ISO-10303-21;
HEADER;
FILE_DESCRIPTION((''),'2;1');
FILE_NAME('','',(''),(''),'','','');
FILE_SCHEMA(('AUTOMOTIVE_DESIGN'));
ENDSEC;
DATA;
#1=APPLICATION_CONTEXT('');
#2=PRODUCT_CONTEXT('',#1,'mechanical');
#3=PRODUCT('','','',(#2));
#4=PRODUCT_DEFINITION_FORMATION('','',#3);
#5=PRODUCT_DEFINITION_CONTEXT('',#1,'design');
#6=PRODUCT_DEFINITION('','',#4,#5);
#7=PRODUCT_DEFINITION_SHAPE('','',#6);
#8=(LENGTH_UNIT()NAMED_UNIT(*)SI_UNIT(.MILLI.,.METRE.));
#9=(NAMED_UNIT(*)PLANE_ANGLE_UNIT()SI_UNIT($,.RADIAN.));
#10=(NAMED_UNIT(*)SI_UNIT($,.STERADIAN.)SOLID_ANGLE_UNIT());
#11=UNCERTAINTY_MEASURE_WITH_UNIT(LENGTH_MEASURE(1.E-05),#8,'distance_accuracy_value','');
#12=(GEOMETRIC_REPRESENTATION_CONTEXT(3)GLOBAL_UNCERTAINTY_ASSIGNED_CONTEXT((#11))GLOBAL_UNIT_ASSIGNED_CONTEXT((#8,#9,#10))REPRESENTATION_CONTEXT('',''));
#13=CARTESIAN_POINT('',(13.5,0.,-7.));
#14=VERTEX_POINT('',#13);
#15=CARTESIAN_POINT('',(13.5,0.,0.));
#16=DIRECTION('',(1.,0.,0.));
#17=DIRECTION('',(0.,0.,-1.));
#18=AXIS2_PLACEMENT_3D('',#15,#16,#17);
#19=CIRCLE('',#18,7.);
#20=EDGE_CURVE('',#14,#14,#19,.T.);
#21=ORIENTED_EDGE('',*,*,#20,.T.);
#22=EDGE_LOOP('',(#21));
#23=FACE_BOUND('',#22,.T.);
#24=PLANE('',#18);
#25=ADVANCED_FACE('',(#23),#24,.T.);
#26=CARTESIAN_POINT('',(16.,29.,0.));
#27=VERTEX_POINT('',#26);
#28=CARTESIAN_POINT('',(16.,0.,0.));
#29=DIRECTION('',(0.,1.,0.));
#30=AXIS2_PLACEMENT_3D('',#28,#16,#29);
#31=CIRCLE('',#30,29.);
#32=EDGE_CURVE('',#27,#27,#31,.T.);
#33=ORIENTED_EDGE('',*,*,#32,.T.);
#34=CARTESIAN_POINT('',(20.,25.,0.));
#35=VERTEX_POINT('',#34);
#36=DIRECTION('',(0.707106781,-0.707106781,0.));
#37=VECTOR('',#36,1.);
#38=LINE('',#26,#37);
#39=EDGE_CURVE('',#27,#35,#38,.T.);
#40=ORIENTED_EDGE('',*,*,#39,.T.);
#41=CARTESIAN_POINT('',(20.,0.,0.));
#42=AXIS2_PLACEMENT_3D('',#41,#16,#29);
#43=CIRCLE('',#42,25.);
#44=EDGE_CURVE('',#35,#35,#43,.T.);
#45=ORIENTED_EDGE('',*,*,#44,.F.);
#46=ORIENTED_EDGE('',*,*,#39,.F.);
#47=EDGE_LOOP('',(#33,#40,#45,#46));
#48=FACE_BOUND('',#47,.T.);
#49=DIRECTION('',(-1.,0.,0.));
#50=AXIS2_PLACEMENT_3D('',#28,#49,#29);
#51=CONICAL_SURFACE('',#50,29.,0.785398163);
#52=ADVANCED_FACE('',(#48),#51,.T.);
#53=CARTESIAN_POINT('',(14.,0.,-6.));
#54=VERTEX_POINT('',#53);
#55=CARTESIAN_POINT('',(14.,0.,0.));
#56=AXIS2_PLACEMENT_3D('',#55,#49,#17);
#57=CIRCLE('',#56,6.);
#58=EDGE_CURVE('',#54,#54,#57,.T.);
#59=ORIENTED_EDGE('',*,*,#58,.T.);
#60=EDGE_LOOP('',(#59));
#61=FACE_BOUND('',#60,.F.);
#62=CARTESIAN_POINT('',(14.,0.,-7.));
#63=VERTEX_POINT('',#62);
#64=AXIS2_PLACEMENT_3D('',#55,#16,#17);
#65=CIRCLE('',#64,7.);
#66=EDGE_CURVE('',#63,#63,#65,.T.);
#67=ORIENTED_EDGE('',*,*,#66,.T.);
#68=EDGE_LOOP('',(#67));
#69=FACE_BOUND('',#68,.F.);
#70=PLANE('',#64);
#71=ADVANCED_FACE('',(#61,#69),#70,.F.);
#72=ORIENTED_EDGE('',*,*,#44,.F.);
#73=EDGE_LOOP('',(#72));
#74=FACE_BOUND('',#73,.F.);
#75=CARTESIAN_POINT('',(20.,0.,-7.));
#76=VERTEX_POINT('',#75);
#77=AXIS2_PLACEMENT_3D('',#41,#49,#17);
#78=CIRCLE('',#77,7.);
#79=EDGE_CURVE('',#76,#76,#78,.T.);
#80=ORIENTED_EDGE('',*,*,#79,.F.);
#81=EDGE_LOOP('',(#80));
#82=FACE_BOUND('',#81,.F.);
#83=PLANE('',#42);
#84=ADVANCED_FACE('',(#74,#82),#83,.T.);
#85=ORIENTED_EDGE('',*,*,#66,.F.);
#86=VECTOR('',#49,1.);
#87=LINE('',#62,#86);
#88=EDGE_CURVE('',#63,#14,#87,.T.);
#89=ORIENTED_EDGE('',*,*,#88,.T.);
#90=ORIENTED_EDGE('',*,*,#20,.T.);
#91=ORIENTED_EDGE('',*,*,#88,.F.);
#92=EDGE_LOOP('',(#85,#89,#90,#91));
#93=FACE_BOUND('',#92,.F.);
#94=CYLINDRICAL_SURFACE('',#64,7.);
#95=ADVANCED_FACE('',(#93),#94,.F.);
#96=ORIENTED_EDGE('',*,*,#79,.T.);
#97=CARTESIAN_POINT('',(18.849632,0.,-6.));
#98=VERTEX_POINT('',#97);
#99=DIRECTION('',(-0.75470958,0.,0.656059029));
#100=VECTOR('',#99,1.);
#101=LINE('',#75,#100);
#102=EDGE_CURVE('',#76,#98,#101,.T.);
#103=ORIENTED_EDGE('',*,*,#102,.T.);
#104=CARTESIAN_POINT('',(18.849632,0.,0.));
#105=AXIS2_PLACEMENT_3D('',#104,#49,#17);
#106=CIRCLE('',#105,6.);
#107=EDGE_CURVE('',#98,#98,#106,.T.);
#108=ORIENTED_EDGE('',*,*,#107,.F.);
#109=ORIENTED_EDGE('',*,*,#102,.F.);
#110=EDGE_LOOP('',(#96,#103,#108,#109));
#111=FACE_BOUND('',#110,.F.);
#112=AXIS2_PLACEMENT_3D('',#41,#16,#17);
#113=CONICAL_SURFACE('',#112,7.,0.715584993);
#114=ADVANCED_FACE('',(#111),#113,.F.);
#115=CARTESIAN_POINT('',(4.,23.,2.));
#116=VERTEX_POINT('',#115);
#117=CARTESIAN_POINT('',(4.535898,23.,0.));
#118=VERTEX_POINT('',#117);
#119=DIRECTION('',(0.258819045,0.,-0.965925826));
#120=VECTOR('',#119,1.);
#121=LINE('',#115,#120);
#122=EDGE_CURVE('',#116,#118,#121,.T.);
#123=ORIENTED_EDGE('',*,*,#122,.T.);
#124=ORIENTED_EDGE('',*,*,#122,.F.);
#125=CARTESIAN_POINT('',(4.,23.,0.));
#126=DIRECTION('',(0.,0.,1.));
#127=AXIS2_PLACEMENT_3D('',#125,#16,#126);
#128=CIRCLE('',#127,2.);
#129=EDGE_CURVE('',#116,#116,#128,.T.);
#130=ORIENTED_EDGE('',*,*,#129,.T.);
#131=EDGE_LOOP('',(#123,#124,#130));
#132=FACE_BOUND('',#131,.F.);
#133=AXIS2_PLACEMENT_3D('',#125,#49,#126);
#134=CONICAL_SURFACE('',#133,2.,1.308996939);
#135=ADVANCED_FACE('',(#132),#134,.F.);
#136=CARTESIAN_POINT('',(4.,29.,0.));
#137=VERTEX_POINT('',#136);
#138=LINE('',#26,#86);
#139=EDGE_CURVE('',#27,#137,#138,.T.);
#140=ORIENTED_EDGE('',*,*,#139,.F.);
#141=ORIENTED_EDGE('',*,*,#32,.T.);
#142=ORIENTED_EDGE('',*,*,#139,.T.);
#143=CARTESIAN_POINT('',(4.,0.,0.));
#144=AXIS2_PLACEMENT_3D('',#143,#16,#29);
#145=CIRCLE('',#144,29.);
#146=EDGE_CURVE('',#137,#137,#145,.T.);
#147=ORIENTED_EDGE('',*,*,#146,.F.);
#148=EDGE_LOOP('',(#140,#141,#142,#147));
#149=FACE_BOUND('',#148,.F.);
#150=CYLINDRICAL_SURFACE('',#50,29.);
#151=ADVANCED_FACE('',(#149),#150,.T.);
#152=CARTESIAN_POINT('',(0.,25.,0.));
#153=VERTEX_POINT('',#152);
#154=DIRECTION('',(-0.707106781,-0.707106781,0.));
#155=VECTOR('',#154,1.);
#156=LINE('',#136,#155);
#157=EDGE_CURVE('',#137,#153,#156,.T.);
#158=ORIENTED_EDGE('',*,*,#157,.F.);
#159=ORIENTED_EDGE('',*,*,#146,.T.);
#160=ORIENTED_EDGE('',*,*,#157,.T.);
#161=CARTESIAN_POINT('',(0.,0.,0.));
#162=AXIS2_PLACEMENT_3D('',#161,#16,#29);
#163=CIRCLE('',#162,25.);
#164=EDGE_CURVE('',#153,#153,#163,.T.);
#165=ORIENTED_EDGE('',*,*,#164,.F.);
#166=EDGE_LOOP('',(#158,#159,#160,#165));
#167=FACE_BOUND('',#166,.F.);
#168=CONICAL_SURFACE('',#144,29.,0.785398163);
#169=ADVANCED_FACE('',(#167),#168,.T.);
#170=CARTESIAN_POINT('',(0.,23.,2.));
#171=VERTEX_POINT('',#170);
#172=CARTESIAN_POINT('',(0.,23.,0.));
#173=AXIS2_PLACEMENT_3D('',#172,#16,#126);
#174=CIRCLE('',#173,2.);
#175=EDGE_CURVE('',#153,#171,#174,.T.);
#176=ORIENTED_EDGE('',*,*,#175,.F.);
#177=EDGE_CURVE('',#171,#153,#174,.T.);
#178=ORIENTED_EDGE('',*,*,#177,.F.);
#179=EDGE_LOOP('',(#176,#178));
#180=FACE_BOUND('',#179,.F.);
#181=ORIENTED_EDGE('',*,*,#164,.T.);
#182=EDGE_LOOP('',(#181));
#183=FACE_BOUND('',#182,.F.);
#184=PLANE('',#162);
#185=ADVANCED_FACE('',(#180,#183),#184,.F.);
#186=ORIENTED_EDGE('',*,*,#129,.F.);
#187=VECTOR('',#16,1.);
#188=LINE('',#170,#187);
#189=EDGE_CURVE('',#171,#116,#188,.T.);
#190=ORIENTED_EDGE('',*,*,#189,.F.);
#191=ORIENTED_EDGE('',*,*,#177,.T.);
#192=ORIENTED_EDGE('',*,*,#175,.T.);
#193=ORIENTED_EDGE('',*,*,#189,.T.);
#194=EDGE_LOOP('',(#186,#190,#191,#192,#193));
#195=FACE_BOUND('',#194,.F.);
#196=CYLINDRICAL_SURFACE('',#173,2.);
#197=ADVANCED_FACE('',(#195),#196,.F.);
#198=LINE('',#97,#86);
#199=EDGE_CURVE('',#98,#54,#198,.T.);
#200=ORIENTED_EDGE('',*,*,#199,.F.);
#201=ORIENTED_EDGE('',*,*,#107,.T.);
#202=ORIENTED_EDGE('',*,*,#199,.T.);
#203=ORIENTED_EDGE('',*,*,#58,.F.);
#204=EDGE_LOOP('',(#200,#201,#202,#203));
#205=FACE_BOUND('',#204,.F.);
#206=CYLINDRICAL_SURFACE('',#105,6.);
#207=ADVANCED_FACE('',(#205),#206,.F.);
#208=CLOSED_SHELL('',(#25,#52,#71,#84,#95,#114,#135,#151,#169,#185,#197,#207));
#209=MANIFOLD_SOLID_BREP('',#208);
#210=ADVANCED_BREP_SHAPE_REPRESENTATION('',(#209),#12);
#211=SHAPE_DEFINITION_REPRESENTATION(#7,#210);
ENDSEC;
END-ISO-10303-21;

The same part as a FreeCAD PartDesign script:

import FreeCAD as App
import Part
import Sketcher


def add_polygon(sketch, points):
    """Adds a closed chain of lines whose ends are joined by coincident constraints."""
    first, n = sketch.GeometryCount, len(points)
    for a, b in zip(points, points[1:] + points[:1]):
        sketch.addGeometry(Part.LineSegment(App.Vector(*a, 0), App.Vector(*b, 0)), False)
    for i in range(n):
        sketch.addConstraint(Sketcher.Constraint("Coincident", first + i, 2, first + (i + 1) % n, 1))

doc = App.newDocument("Part")
body = doc.addObject("PartDesign::Body", "Body")

# Sketch on XY plane
sketch1 = body.newObject("Sketcher::SketchObject", "Sketch")
sketch1.AttachmentSupport = (doc.getObject("XY_Plane"), [""])
sketch1.MapMode = "FlatFace"
add_polygon(sketch1, [(0, 25), (0, 0), (20, 0), (20, 25), (16, 29), (4, 29)])  # lines 0-5
sketch1.addConstraint([
    Sketcher.Constraint("Vertical", 0),
    Sketcher.Constraint("Horizontal", 1),
    Sketcher.Constraint("Vertical", 2),
    Sketcher.Constraint("Horizontal", 4),
    Sketcher.Constraint("Coincident", 0, 2, -1, 1),
    Sketcher.Constraint("Perpendicular", 3, 5),
    Sketcher.Constraint("Horizontal", 2, 2, 5, 2),
    Sketcher.Constraint("Equal", 3, 5),
    Sketcher.Constraint("DistanceX", 1, 1, 1, 2, 20.0),
    Sketcher.Constraint("DistanceY", -1, 1, 3, 2, 29.0),
    Sketcher.Constraint("DistanceX", -1, 1, 4, 2, 4.0),
])
revolution = body.newObject("PartDesign::Revolution", "Revolution")
revolution.Profile = sketch1
revolution.ReferenceAxis = (sketch1, ["H_Axis"])
revolution.Angle = 360

# Sketch on YZ plane
sketch2 = body.newObject("Sketcher::SketchObject", "Sketch001")
sketch2.AttachmentSupport = (doc.getObject("YZ_Plane"), [""])
sketch2.MapMode = "FlatFace"
sketch2.addGeometry(Part.Circle(App.Vector(23, 0, 0), App.Vector(0, 0, 1), 2), False)
sketch2.addConstraint([
    Sketcher.Constraint("PointOnObject", 0, 3, -1),
    Sketcher.Constraint("Diameter", 0, 4.0),
    Sketcher.Constraint("DistanceX", -1, 1, 0, 3, 23.0),
])
doc.recompute()
hole = body.newObject("PartDesign::Hole", "Hole")
hole.Profile = sketch2
hole.ThreadType = "None"
hole.Diameter = 4
hole.DepthType = "Dimension"
hole.Depth = 4
hole.DrillPoint = "Angled"
hole.DrillPointAngle = 150
hole.Reversed = True

# Sketch on YZ plane
sketch3 = body.newObject("Sketcher::SketchObject", "Sketch002")
sketch3.AttachmentSupport = (doc.getObject("YZ_Plane"), [""])
sketch3.MapMode = "FlatFace"
sketch3.AttachmentOffset = App.Placement(App.Vector(0, 0, 20), App.Rotation())
sketch3.addGeometry(Part.Circle(App.Vector(0, 0, 0), App.Vector(0, 0, 1), 6), False)
sketch3.addConstraint([
    Sketcher.Constraint("Coincident", 0, 3, -1, 1),
    Sketcher.Constraint("Diameter", 0, 12.0),
])
doc.recompute()
hole2 = body.newObject("PartDesign::Hole", "Hole001")
hole2.Profile = sketch3
hole2.ThreadType = "None"
hole2.Diameter = 12
hole2.DepthType = "Dimension"
hole2.Depth = 6
hole2.DrillPoint = "Flat"
hole2.HoleCutType = "Countersink"
hole2.HoleCutDiameter = 14
hole2.HoleCutCountersinkAngle = 82

# Sketch on YZ plane
sketch4 = body.newObject("Sketcher::SketchObject", "Sketch003")
sketch4.AttachmentSupport = (doc.getObject("YZ_Plane"), [""])
sketch4.MapMode = "FlatFace"
sketch4.AttachmentOffset = App.Placement(App.Vector(0, 0, 14), App.Rotation())
sketch4.addGeometry(Part.Circle(App.Vector(0, 0, 0), App.Vector(0, 0, 1), 7), False)
sketch4.addConstraint([
    Sketcher.Constraint("Coincident", 0, 3, -1, 1),
    Sketcher.Constraint("Diameter", 0, 14.0),
])
pocket1 = body.newObject("PartDesign::Pocket", "Pocket")
pocket1.Profile = sketch4
pocket1.Length = 0.5

doc.recompute()
